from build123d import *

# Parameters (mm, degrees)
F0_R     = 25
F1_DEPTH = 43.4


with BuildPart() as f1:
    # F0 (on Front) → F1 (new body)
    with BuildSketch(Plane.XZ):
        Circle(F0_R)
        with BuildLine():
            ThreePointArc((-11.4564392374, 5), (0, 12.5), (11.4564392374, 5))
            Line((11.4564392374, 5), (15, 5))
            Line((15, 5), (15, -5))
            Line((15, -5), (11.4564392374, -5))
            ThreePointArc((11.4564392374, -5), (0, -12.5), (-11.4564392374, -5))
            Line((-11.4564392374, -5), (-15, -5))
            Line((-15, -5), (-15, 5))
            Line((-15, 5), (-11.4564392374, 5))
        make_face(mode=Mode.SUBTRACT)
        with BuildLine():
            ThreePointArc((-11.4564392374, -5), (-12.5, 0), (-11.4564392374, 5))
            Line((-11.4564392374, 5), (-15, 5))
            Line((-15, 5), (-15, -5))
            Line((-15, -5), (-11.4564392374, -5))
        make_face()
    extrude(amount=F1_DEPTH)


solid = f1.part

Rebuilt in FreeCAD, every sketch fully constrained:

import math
import FreeCAD as App
import Part
import Sketcher
from FreeCAD import Vector

doc = App.newDocument("Part")
params = doc.addObject("Spreadsheet::Sheet", "Params")
for row, (alias, value) in enumerate([
    ("sketch1_diameter", "50 mm"),
    ("sketch1_radius", "12.5 mm"),
    ("sketch1_height", "10 mm"),
    ("pad1_length", "43.4 mm"),
], start=1):
    params.set(f"A{row}", alias)
    params.set(f"B{row}", "=" + value)
    params.setAlias(f"B{row}", alias)

body = doc.addObject("PartDesign::Body", "Body")

# Sketch on XZ plane
sketch1 = body.newObject("Sketcher::SketchObject", "Sketch")
sketch1.AttachmentSupport = (doc.getObject("XZ_Plane"), [""])
sketch1.MapMode = "FlatFace"
sketch1.addGeometry(Part.Circle(Vector(0, 0, 0), Vector(0, 0, 1), 25), False)
sketch1.addGeometry(Part.ArcOfCircle(Part.Circle(Vector(0, 0, 0), Vector(0, 0, 1), 12.5), math.radians(-156), math.radians(-24)), False)
sketch1.addGeometry(Part.ArcOfCircle(Part.Circle(Vector(0, 0, 0), Vector(0, 0, 1), 12.5), math.radians(156), math.radians(204)), False)
sketch1.addGeometry(Part.ArcOfCircle(Part.Circle(Vector(0, 0, 0), Vector(0, 0, 1), 12.5), math.radians(24), math.radians(156)), False)
sketch1.addGeometry(Part.LineSegment(Vector(11.5, 5, 0), Vector(15, 5, 0)), False)
sketch1.addGeometry(Part.LineSegment(Vector(15, 5, 0), Vector(15, -5, 0)), False)
sketch1.addGeometry(Part.LineSegment(Vector(15, -5, 0), Vector(11.5, -5, 0)), False)
sketch1.addConstraint(Sketcher.Constraint("Tangent", 1, 1, 2, 2))
sketch1.addConstraint(Sketcher.Constraint("Tangent", 2, 1, 3, 2))
sketch1.addConstraint(Sketcher.Constraint("Coincident", 3, 1, 4, 1))
sketch1.addConstraint(Sketcher.Constraint("Coincident", 4, 2, 5, 1))
sketch1.addConstraint(Sketcher.Constraint("Coincident", 5, 2, 6, 1))
sketch1.addConstraint(Sketcher.Constraint("Coincident", 6, 2, 1, 2))
sketch1.addConstraint(Sketcher.Constraint("Horizontal", 4))
sketch1.addConstraint(Sketcher.Constraint("Vertical", 5))
sketch1.addConstraint(Sketcher.Constraint("Horizontal", 6))
sketch1.addConstraint(Sketcher.Constraint("Coincident", 0, 3, -1, 1))
sketch1.addConstraint(Sketcher.Constraint("Coincident", 1, 3, -1, 1))
sketch1.addConstraint(Sketcher.Constraint("Coincident", 3, 3, -1, 1))
sketch1.addConstraint(Sketcher.Constraint("Horizontal", 2, 1, 3, 1))
sketch1.addConstraint(Sketcher.Constraint("Horizontal", 1, 1, 5, 2))
sketch1.addConstraint(Sketcher.Constraint("Vertical", 1, 1, 2, 1))
sketch1.addConstraint(Sketcher.Constraint("Diameter", 0, 50.0))
sketch1.addConstraint(Sketcher.Constraint("Radius", 1, 12.5))
sketch1.addConstraint(Sketcher.Constraint("DistanceY", 5, 2, 5, 1, 10.0))
sketch1.addConstraint(Sketcher.Constraint("DistanceX", -1, 1, 4, 2, 15.0))
sketch1.setExpression("Constraints[15]", "Params.sketch1_diameter")
sketch1.setExpression("Constraints[16]", "Params.sketch1_radius")
sketch1.setExpression("Constraints[17]", "Params.sketch1_height")
pad1 = body.newObject("PartDesign::Pad", "Pad")
pad1.Profile = sketch1
pad1.setExpression("Length", "Params.pad1_length")

doc.recompute()
